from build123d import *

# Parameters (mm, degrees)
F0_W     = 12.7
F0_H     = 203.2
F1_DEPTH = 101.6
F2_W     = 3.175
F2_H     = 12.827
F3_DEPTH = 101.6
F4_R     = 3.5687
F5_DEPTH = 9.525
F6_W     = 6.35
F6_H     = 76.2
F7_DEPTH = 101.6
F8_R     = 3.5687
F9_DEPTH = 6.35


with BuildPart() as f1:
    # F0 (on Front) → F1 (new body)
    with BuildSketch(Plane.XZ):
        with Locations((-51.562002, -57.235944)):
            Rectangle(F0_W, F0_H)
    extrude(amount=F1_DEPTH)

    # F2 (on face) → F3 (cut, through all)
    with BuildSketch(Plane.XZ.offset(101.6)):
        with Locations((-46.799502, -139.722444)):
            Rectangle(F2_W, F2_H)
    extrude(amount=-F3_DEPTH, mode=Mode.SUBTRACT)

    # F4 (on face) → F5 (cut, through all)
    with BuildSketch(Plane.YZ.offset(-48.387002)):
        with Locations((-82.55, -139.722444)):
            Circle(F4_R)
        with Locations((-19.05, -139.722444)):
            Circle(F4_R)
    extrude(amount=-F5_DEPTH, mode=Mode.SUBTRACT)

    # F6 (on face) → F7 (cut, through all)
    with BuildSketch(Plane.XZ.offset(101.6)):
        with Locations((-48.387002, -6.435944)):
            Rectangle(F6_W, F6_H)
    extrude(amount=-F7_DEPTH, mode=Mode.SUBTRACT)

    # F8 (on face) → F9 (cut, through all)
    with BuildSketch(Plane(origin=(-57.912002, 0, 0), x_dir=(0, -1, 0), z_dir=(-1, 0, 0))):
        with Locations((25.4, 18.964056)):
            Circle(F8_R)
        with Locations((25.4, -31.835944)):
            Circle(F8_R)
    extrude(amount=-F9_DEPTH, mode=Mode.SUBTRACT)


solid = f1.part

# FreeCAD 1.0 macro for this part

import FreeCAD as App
import Part
import Sketcher
Q = App.Units.Quantity


def add_polygon(sketch, points):
    """Adds a closed chain of lines whose ends are joined by coincident constraints."""
    first, n = sketch.GeometryCount, len(points)
    for a, b in zip(points, points[1:] + points[:1]):
        sketch.addGeometry(Part.LineSegment(App.Vector(*a, 0), App.Vector(*b, 0)), False)
    for i in range(n):
        sketch.addConstraint(Sketcher.Constraint("Coincident", first + i, 2, first + (i + 1) % n, 1))

doc = App.newDocument("Part")
params = doc.addObject("Spreadsheet::Sheet", "Params")
for row, (alias, value) in enumerate([
    ("sketch1_height", "8 in"),
    ("sketch1_width", "0.5 in"),
    ("pad1_length", "4 in"),
    ("sketch2_width", "0.125 in"),
    ("sketch2_height", "0.505 in"),
    ("sketch3_diameter", "0.281 in"),
    ("sketch4_height", "3 in"),
    ("sketch4_width", "0.25 in"),
    ("sketch5_diameter", "0.281 in"),
], start=1):
    params.set(f"A{row}", alias)
    params.set(f"B{row}", "=" + value)
    params.setAlias(f"B{row}", alias)

body = doc.addObject("PartDesign::Body", "Body")

sketch1 = body.newObject("Sketcher::SketchObject", "Sketch")
sketch1.AttachmentSupport = (doc.getObject("XZ_Plane"), [""])
sketch1.MapMode = "FlatFace"
add_polygon(sketch1, [(-58, 44), (-58, -159), (-45, -159), (-45, 44)])
sketch1.addConstraint(Sketcher.Constraint("Vertical", 0))
sketch1.addConstraint(Sketcher.Constraint("Horizontal", 1))
sketch1.addConstraint(Sketcher.Constraint("Vertical", 2))
sketch1.addConstraint(Sketcher.Constraint("Horizontal", 3))
sketch1.addConstraint(Sketcher.Constraint("DistanceY", 0, 2, 0, 1, Q("8 in")))
sketch1.addConstraint(Sketcher.Constraint("DistanceX", 1, 1, 1, 2, Q("0.5 in")))
sketch1.addConstraint(Sketcher.Constraint("DistanceX", 0, 2, -1, 1, Q("2.2800001 in")))
sketch1.addConstraint(Sketcher.Constraint("DistanceY", 0, 2, -1, 1, Q("158.835944 mm")))
sketch1.setExpression("Constraints[8]", "Params.sketch1_height")
sketch1.setExpression("Constraints[9]", "Params.sketch1_width")
pad1 = body.newObject("PartDesign::Pad", "Pad")
pad1.Profile = sketch1
pad1.setExpression("Length", "Params.pad1_length")

sketch2 = body.newObject("Sketcher::SketchObject", "Sketch001")
sketch2.AttachmentSupport = (doc.getObject("XZ_Plane"), [""])
sketch2.MapMode = "FlatFace"
sketch2.AttachmentOffset = App.Placement(App.Vector(0, 0, 4 * 25.4), App.Rotation())
add_polygon(sketch2, [(-48.4, -133.3), (-48.4, -146.1), (-45.2, -146.1), (-45.2, -133.3)])
sketch2.addConstraint(Sketcher.Constraint("Vertical", 0))
sketch2.addConstraint(Sketcher.Constraint("Horizontal", 1))
sketch2.addConstraint(Sketcher.Constraint("Vertical", 2))
sketch2.addConstraint(Sketcher.Constraint("Horizontal", 3))
sketch2.addConstraint(Sketcher.Constraint("DistanceX", 1, 1, 1, 2, Q("0.125 in")))
sketch2.addConstraint(Sketcher.Constraint("DistanceY", 0, 2, 0, 1, Q("0.505 in")))
sketch2.addConstraint(Sketcher.Constraint("DistanceX", 1, 2, -1, 1, Q("1.7800001 in")))
sketch2.addConstraint(Sketcher.Constraint("DistanceY", 0, 2, -1, 1, Q("146.135944 mm")))
sketch2.setExpression("Constraints[8]", "Params.sketch2_width")
sketch2.setExpression("Constraints[9]", "Params.sketch2_height")
pocket1 = body.newObject("PartDesign::Pocket", "Pocket")
pocket1.Profile = sketch2
pocket1.Type = "ThroughAll"

sketch3 = body.newObject("Sketcher::SketchObject", "Sketch002")
sketch3.AttachmentSupport = (doc.getObject("YZ_Plane"), [""])
sketch3.MapMode = "FlatFace"
sketch3.AttachmentOffset = App.Placement(App.Vector(0, 0, -1.9050001 * 25.4), App.Rotation())
sketch3.addGeometry(Part.Circle(App.Vector(-82.5, -139.7, 0), App.Vector(0, 0, 1), 3.6), False)
sketch3.addGeometry(Part.Circle(App.Vector(-19.1, -139.7, 0), App.Vector(0, 0, 1), 3.6), False)
sketch3.addConstraint(Sketcher.Constraint("Equal", 0, 1))
sketch3.addConstraint(Sketcher.Constraint("Horizontal", 0, 3, 1, 3))
sketch3.addConstraint(Sketcher.Constraint("Diameter", 0, Q("0.281 in")))
sketch3.addConstraint(Sketcher.Constraint("DistanceX", 0, 3, 1, 3, Q("2.5 in")))
sketch3.addConstraint(Sketcher.Constraint("DistanceX", 0, 3, -1, 1, Q("3.25 in")))
sketch3.addConstraint(Sketcher.Constraint("DistanceY", 0, 3, -1, 1, Q("139.722444 mm")))
sketch3.setExpression("Constraints[2]", "Params.sketch3_diameter")
pocket2 = body.newObject("PartDesign::Pocket", "Pocket001")
pocket2.Profile = sketch3
pocket2.Type = "ThroughAll"

sketch4 = body.newObject("Sketcher::SketchObject", "Sketch003")
sketch4.AttachmentSupport = (doc.getObject("XZ_Plane"), [""])
sketch4.MapMode = "FlatFace"
sketch4.AttachmentOffset = App.Placement(App.Vector(0, 0, 4 * 25.4), App.Rotation())
add_polygon(sketch4, [(-52, 32), (-52, -45), (-45, -45), (-45, 32)])
sketch4.addConstraint(Sketcher.Constraint("Vertical", 0))
sketch4.addConstraint(Sketcher.Constraint("Horizontal", 1))
sketch4.addConstraint(Sketcher.Constraint("Vertical", 2))
sketch4.addConstraint(Sketcher.Constraint("Horizontal", 3))
sketch4.addConstraint(Sketcher.Constraint("DistanceY", 0, 2, 0, 1, Q("3 in")))
sketch4.addConstraint(Sketcher.Constraint("DistanceX", 1, 1, 1, 2, Q("0.25 in")))
sketch4.addConstraint(Sketcher.Constraint("DistanceX", 0, 2, -1, 1, Q("2.0300001 in")))
sketch4.addConstraint(Sketcher.Constraint("DistanceY", 0, 2, -1, 1, Q("44.535944 mm")))
sketch4.setExpression("Constraints[8]", "Params.sketch4_height")
sketch4.setExpression("Constraints[9]", "Params.sketch4_width")
pocket3 = body.newObject("PartDesign::Pocket", "Pocket002")
pocket3.Profile = sketch4
pocket3.Type = "ThroughAll"

sketch5 = body.newObject("Sketcher::SketchObject", "Sketch004")
sketch5.AttachmentSupport = (doc.getObject("YZ_Plane"), [""])
sketch5.MapMode = "FlatFace"
sketch5.AttachmentOffset = App.Placement(App.Vector(0, 0, -2.2800001 * 25.4), App.Rotation())
sketch5.addGeometry(Part.Circle(App.Vector(-25.4, 19, 0), App.Vector(0, 0, 1), 3.6), False)
sketch5.addGeometry(Part.Circle(App.Vector(-25.4, -31.8, 0), App.Vector(0, 0, 1), 3.6), False)
sketch5.addConstraint(Sketcher.Constraint("Equal", 0, 1))
sketch5.addConstraint(Sketcher.Constraint("Vertical", 0, 3, 1, 3))
sketch5.addConstraint(Sketcher.Constraint("Diameter", 0, Q("0.281 in")))
sketch5.addConstraint(Sketcher.Constraint("DistanceX", 0, 3, -1, 1, Q("1 in")))
sketch5.addConstraint(Sketcher.Constraint("DistanceY", 1, 3, 0, 3, Q("2 in")))
sketch5.addConstraint(Sketcher.Constraint("DistanceY", -1, 1, 0, 3, Q("18.964056 mm")))
sketch5.setExpression("Constraints[2]", "Params.sketch5_diameter")
pocket4 = body.newObject("PartDesign::Pocket", "Pocket003")
pocket4.Profile = sketch5
pocket4.Type = "ThroughAll"
pocket4.Reversed = True

doc.recompute()
